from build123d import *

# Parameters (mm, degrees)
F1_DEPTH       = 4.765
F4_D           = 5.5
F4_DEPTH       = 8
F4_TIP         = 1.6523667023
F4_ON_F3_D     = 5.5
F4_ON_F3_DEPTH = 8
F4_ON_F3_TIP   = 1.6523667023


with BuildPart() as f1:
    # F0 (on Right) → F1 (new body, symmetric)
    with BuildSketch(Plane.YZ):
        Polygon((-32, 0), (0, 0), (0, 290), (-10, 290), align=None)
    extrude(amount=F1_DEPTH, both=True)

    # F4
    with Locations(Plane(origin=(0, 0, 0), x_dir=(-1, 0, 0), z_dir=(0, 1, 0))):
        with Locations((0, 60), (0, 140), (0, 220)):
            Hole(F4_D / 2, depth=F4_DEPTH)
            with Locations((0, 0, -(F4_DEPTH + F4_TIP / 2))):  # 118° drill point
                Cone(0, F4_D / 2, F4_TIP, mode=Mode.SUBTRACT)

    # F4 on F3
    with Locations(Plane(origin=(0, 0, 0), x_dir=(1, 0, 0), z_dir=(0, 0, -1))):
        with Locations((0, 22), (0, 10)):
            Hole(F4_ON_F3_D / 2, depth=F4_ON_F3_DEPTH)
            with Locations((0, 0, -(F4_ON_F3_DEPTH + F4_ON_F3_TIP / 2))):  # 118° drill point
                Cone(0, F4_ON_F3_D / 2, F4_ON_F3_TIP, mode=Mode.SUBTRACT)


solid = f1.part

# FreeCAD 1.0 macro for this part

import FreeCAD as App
import Part
import Sketcher
from FreeCAD import Vector
Q = App.Units.Quantity

doc = App.newDocument("Part")
body = doc.addObject("PartDesign::Body", "Body")

# Sketch on YZ plane
sketch1 = doc.addObject("Sketcher::SketchObject", "Sketch")
body.addObject(sketch1)
sketch1.AttachmentSupport = (doc.YZ_Plane, [""])
sketch1.MapMode = "FlatFace"
sketch1.addGeometry([
    Part.LineSegment(Vector(-32, 0, 0), Vector(0, 0, 0)),
    Part.LineSegment(Vector(0, 0, 0), Vector(0, 290, 0)),
    Part.LineSegment(Vector(0, 290, 0), Vector(-10, 290, 0)),
    Part.LineSegment(Vector(-10, 290, 0), Vector(-32, 0, 0)),
], False)
sketch1.addConstraint([
    Sketcher.Constraint("Coincident", 0, 2, 1, 1),
    Sketcher.Constraint("Coincident", 1, 2, 2, 1),
    Sketcher.Constraint("Coincident", 2, 2, 3, 1),
    Sketcher.Constraint("Coincident", 3, 2, 0, 1),
    Sketcher.Constraint("Horizontal", 0),
    Sketcher.Constraint("Vertical", 1),
    Sketcher.Constraint("Horizontal", 2),
    Sketcher.Constraint("Coincident", 0, 2, -1, 1),
    Sketcher.Constraint("DistanceX", 0, 1, 0, 2, Q("32 mm")),
    Sketcher.Constraint("DistanceX", 2, 2, 2, 1, Q("10 mm")),
    Sketcher.Constraint("DistanceY", 1, 1, 1, 2, Q("290 mm")),
])
pad1 = doc.addObject("PartDesign::Pad", "Pad")
body.addObject(pad1)
pad1.Profile = sketch1
pad1.Length = 9.53
pad1.Midplane = True

# Sketch on XZ plane
sketch2 = doc.addObject("Sketcher::SketchObject", "Sketch001")
body.addObject(sketch2)
sketch2.AttachmentSupport = (doc.XZ_Plane, [""])
sketch2.MapMode = "FlatFace"
sketch2.addGeometry([
    Part.Circle(Vector(0, 60, 0), Vector(0, 0, 1), 2.8),
    Part.Circle(Vector(0, 140, 0), Vector(0, 0, 1), 2.8),
    Part.Circle(Vector(0, 220, 0), Vector(0, 0, 1), 2.8),
], False)
sketch2.addConstraint([
    Sketcher.Constraint("Equal", 0, 1),
    Sketcher.Constraint("Equal", 1, 2),
    Sketcher.Constraint("PointOnObject", 0, 3, -2),
    Sketcher.Constraint("PointOnObject", 1, 3, -2),
    Sketcher.Constraint("PointOnObject", 2, 3, -2),
    Sketcher.Constraint("Diameter", 0, Q("5.5 mm")),
    Sketcher.Constraint("DistanceY", -1, 1, 0, 3, Q("60 mm")),
    Sketcher.Constraint("DistanceY", -1, 1, 1, 3, Q("140 mm")),
    Sketcher.Constraint("DistanceY", -1, 1, 2, 3, Q("220 mm")),
])
doc.recompute()
hole = doc.addObject("PartDesign::Hole", "Hole")
body.addObject(hole)
hole.Profile = sketch2
hole.ThreadType = "None"
hole.Diameter = 5.5
hole.DepthType = "Dimension"
hole.Depth = 8
hole.DrillPoint = "Angled"
hole.DrillPointAngle = 118
hole.Reversed = True

# Sketch on XY plane
sketch3 = doc.addObject("Sketcher::SketchObject", "Sketch002")
body.addObject(sketch3)
sketch3.AttachmentSupport = (doc.XY_Plane, [""])
sketch3.MapMode = "FlatFace"
sketch3.addGeometry([
    Part.Circle(Vector(0, -22, 0), Vector(0, 0, 1), 2.8),
    Part.Circle(Vector(0, -10, 0), Vector(0, 0, 1), 2.8),
], False)
sketch3.addConstraint([
    Sketcher.Constraint("Equal", 0, 1),
    Sketcher.Constraint("PointOnObject", 0, 3, -2),
    Sketcher.Constraint("PointOnObject", 1, 3, -2),
    Sketcher.Constraint("Diameter", 0, Q("5.5 mm")),
    Sketcher.Constraint("DistanceY", 0, 3, -1, 1, Q("22 mm")),
    Sketcher.Constraint("DistanceY", 1, 3, -1, 1, Q("10 mm")),
])
doc.recompute()
hole2 = doc.addObject("PartDesign::Hole", "Hole001")
body.addObject(hole2)
hole2.Profile = sketch3
hole2.ThreadType = "None"
hole2.Diameter = 5.5
hole2.DepthType = "Dimension"
hole2.Depth = 8
hole2.DrillPoint = "Angled"
hole2.DrillPointAngle = 118
hole2.Reversed = True

doc.recompute()
